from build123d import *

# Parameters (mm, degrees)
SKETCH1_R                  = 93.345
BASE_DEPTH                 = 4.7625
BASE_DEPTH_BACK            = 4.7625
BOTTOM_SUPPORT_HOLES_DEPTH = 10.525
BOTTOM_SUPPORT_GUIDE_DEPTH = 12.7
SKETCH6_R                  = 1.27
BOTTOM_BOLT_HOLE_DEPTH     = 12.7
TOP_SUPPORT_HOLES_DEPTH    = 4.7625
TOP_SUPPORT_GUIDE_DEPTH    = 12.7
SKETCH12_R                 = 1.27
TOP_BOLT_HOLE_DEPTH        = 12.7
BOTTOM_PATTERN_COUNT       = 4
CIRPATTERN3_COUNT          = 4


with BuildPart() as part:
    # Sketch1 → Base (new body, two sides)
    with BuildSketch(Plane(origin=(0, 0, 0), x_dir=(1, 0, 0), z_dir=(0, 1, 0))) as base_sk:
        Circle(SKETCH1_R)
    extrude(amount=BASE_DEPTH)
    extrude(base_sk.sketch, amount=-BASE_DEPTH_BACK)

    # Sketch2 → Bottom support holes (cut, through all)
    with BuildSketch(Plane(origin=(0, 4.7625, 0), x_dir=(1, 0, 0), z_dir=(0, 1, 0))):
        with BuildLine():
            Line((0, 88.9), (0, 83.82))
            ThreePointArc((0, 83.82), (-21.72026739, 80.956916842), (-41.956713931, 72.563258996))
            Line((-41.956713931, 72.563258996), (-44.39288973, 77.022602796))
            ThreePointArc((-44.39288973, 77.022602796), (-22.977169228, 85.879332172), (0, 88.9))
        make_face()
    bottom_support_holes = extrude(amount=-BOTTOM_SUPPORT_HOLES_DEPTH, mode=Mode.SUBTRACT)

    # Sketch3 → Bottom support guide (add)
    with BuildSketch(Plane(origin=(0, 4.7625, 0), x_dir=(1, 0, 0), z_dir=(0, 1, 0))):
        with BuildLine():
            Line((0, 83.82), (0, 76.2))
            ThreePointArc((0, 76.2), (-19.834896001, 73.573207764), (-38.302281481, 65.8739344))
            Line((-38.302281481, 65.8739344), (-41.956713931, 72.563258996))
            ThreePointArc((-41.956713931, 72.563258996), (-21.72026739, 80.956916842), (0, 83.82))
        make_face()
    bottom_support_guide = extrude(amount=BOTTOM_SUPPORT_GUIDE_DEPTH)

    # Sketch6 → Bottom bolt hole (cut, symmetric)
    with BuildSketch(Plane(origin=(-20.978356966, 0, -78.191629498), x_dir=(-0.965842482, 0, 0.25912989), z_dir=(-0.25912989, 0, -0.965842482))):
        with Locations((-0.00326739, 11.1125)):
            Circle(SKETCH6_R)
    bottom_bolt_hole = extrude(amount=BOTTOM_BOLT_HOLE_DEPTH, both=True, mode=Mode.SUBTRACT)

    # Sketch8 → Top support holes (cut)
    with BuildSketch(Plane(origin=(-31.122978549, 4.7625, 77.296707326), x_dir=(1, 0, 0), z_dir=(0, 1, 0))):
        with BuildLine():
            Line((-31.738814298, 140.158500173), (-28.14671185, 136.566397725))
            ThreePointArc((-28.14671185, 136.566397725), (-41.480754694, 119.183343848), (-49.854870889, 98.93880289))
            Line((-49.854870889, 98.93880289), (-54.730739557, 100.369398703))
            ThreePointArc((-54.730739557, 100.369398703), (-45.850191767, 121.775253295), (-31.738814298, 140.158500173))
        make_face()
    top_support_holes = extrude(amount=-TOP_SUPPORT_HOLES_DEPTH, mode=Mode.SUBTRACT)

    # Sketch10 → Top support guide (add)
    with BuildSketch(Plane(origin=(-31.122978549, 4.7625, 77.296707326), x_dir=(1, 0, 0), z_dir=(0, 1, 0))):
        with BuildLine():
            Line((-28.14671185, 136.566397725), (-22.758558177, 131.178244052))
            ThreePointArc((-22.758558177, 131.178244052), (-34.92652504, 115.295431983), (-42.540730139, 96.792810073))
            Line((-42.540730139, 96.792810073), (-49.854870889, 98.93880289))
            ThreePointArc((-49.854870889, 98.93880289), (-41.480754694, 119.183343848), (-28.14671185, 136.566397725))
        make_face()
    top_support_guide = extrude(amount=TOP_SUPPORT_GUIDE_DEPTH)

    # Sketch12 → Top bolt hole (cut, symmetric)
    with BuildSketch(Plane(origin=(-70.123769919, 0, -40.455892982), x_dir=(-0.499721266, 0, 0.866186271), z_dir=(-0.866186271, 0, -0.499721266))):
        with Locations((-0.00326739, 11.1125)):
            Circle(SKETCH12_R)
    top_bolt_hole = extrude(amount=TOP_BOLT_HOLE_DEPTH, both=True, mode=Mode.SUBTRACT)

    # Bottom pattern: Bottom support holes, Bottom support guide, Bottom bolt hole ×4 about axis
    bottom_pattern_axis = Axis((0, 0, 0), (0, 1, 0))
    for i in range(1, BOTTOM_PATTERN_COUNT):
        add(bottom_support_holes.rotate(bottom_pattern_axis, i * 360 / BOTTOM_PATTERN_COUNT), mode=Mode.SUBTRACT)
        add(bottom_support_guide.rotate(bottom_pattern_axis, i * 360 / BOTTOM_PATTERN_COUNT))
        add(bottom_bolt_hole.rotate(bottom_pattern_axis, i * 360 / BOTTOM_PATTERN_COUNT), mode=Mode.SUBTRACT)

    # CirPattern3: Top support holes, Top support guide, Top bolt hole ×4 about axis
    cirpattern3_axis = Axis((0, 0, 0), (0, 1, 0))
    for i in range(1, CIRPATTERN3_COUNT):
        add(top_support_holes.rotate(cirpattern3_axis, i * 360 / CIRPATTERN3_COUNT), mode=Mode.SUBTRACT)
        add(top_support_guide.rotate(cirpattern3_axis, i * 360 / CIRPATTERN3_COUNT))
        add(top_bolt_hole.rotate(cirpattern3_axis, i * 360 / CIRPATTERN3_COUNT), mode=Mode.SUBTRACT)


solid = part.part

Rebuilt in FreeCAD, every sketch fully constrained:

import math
import FreeCAD as App
import Part
import Sketcher
Q = App.Units.Quantity

doc = App.newDocument("Part")
body = doc.addObject("PartDesign::Body", "Body")

# Sketch on XZ plane
sketch1 = doc.addObject("Sketcher::SketchObject", "Sketch")
body.addObject(sketch1)
sketch1.AttachmentSupport = (doc.XZ_Plane, [""])
sketch1.MapMode = "FlatFace"
sketch1.addGeometry(Part.Circle(App.Vector(0, 0, 0), App.Vector(0, 0, 1), 93), False)
sketch1.addConstraint(Sketcher.Constraint("Coincident", 0, 3, -1, 1))
sketch1.addConstraint(Sketcher.Constraint("Diameter", 0, Q("7.35 in")))
pad1 = doc.addObject("PartDesign::Pad", "Pad")
body.addObject(pad1)
pad1.Profile = sketch1
pad1.Type = "TwoLengths"
pad1.Length = Q("0.1875 in")
pad1.Length2 = Q("0.1875 in")
pad1.Reversed = True

# Sketch on XZ plane
sketch2 = doc.addObject("Sketcher::SketchObject", "Sketch001")
body.addObject(sketch2)
sketch2.AttachmentSupport = (doc.XZ_Plane, [""])
sketch2.MapMode = "FlatFace"
sketch2.AttachmentOffset = App.Placement(App.Vector(0, 0, -0.1875 * 25.4), App.Rotation())
sketch2.addGeometry(Part.LineSegment(App.Vector(0, -84, 0), App.Vector(0, -89, 0)), False)
sketch2.addGeometry(Part.ArcOfCircle(Part.Circle(App.Vector(0, 0, 0), App.Vector(0, 0, 1), 89), math.radians(-120), math.radians(-90)), False)
sketch2.addGeometry(Part.LineSegment(App.Vector(-44, -77, 0), App.Vector(-42, -73, 0)), False)
sketch2.addGeometry(Part.ArcOfCircle(Part.Circle(App.Vector(0, 0, 0), App.Vector(0, 0, 1), 84), math.radians(-120), math.radians(-90)), False)
sketch2.addConstraint(Sketcher.Constraint("Coincident", 0, 2, 1, 2))
sketch2.addConstraint(Sketcher.Constraint("Coincident", 1, 1, 2, 1))
sketch2.addConstraint(Sketcher.Constraint("Coincident", 2, 2, 3, 1))
sketch2.addConstraint(Sketcher.Constraint("Coincident", 3, 2, 0, 1))
sketch2.addConstraint(Sketcher.Constraint("Vertical", 0))
sketch2.addConstraint(Sketcher.Constraint("Coincident", 1, 3, -1, 1))
sketch2.addConstraint(Sketcher.Constraint("Coincident", 3, 3, -1, 1))
sketch2.addConstraint(Sketcher.Constraint("PointOnObject", 0, 2, -2))
sketch2.addConstraint(Sketcher.Constraint("Radius", 1, Q("3.5 in")))
sketch2.addConstraint(Sketcher.Constraint("Radius", 3, Q("3.3 in")))
sketch2.addConstraint(Sketcher.Constraint("DistanceX", 1, 1, -1, 1, 44.39289))
sketch2.addConstraint(Sketcher.Constraint("DistanceY", 2, 2, -1, 1, 72.563259))
pocket1 = doc.addObject("PartDesign::Pocket", "Pocket")
body.addObject(pocket1)
pocket1.Profile = sketch2
pocket1.Type = "ThroughAll"
pocket1.Reversed = True

# Sketch on XZ plane
sketch3 = doc.addObject("Sketcher::SketchObject", "Sketch002")
body.addObject(sketch3)
sketch3.AttachmentSupport = (doc.XZ_Plane, [""])
sketch3.MapMode = "FlatFace"
sketch3.AttachmentOffset = App.Placement(App.Vector(0, 0, -0.1875 * 25.4), App.Rotation())
sketch3.addGeometry(Part.LineSegment(App.Vector(0, -76, 0), App.Vector(0, -84, 0)), False)
sketch3.addGeometry(Part.ArcOfCircle(Part.Circle(App.Vector(0, 0, 0), App.Vector(0, 0, 1), 84), math.radians(-120), math.radians(-90)), False)
sketch3.addGeometry(Part.LineSegment(App.Vector(-42, -73, 0), App.Vector(-38, -66, 0)), False)
sketch3.addGeometry(Part.ArcOfCircle(Part.Circle(App.Vector(0, 0, 0), App.Vector(0, 0, 1), 76), math.radians(-120), math.radians(-90)), False)
sketch3.addConstraint(Sketcher.Constraint("Coincident", 0, 2, 1, 2))
sketch3.addConstraint(Sketcher.Constraint("Coincident", 1, 1, 2, 1))
sketch3.addConstraint(Sketcher.Constraint("Coincident", 2, 2, 3, 1))
sketch3.addConstraint(Sketcher.Constraint("Coincident", 3, 2, 0, 1))
sketch3.addConstraint(Sketcher.Constraint("Vertical", 0))
sketch3.addConstraint(Sketcher.Constraint("Coincident", 1, 3, -1, 1))
sketch3.addConstraint(Sketcher.Constraint("Coincident", 3, 3, -1, 1))
sketch3.addConstraint(Sketcher.Constraint("PointOnObject", 0, 2, -2))
sketch3.addConstraint(Sketcher.Constraint("Radius", 3, Q("3 in")))
sketch3.addConstraint(Sketcher.Constraint("Radius", 1, Q("3.3 in")))
sketch3.addConstraint(Sketcher.Constraint("DistanceY", 1, 1, -1, 1, 72.563259))
sketch3.addConstraint(Sketcher.Constraint("DistanceX", 2, 2, -1, 1, 38.302281))
pad2 = doc.addObject("PartDesign::Pad", "Pad001")
body.addObject(pad2)
pad2.Profile = sketch3
pad2.Length = Q("0.5 in")
pad2.Reversed = True

# Sketch on an angled plane
sketch4 = doc.addObject("Sketcher::SketchObject", "Sketch003")
body.addObject(sketch4)
sketch4.Placement = App.Placement(App.Vector(-20.978357, 0, -78.191629), App.Rotation(App.Vector(-0.965842482, 0, 0.25912989), App.Vector(0, 1, 0), App.Vector(-0.25912989, 0, -0.965842482), "ZXY"))
sketch4.addGeometry(Part.Circle(App.Vector(0, 11.1, 0), App.Vector(0, 0, 1), 1.3), False)
sketch4.addConstraint(Sketcher.Constraint("Diameter", 0, Q("0.1 in")))
sketch4.addConstraint(Sketcher.Constraint("DistanceY", -1, 1, 0, 3, Q("0.4375 in")))
sketch4.addConstraint(Sketcher.Constraint("DistanceX", 0, 3, -1, 1, 0.003267))
pocket2 = doc.addObject("PartDesign::Pocket", "Pocket001")
body.addObject(pocket2)
pocket2.Profile = sketch4
pocket2.Length = Q("1 in")
pocket2.Midplane = True

# Sketch on XZ plane
sketch5 = doc.addObject("Sketcher::SketchObject", "Sketch004")
body.addObject(sketch5)
sketch5.AttachmentSupport = (doc.XZ_Plane, [""])
sketch5.MapMode = "FlatFace"
sketch5.AttachmentOffset = App.Placement(App.Vector(0, 0, -0.1875 * 25.4), App.Rotation())
sketch5.addGeometry(Part.LineSegment(App.Vector(-59, -59, 0), App.Vector(-63, -63, 0)), False)
sketch5.addGeometry(Part.ArcOfCircle(Part.Circle(App.Vector(0, 0, 0), App.Vector(0, 0, 1), 89), math.radians(-165), math.radians(-135)), False)
sketch5.addGeometry(Part.LineSegment(App.Vector(-86, -23, 0), App.Vector(-81, -22, 0)), False)
sketch5.addGeometry(Part.ArcOfCircle(Part.Circle(App.Vector(0, 0, 0), App.Vector(0, 0, 1), 84), math.radians(-165), math.radians(-135)), False)
sketch5.addConstraint(Sketcher.Constraint("Coincident", 0, 2, 1, 2))
sketch5.addConstraint(Sketcher.Constraint("Coincident", 1, 1, 2, 1))
sketch5.addConstraint(Sketcher.Constraint("Coincident", 2, 2, 3, 1))
sketch5.addConstraint(Sketcher.Constraint("Coincident", 3, 2, 0, 1))
sketch5.addConstraint(Sketcher.Constraint("Coincident", 1, 3, -1, 1))
sketch5.addConstraint(Sketcher.Constraint("Coincident", 3, 3, -1, 1))
sketch5.addConstraint(Sketcher.Constraint("Radius", 1, Q("3.5 in")))
sketch5.addConstraint(Sketcher.Constraint("Radius", 3, Q("3.3 in")))
sketch5.addConstraint(Sketcher.Constraint("Angle", 0, Q("-135 deg")))
sketch5.addConstraint(Sketcher.Constraint("DistanceY", 0, 2, 1, 1, Q("1.5665001 in")))
sketch5.addConstraint(Sketcher.Constraint("DistanceX", 1, 1, -1, 1, 85.853718))
sketch5.addConstraint(Sketcher.Constraint("DistanceX", 2, 2, -1, 1, 80.977849))
pocket3 = doc.addObject("PartDesign::Pocket", "Pocket002")
body.addObject(pocket3)
pocket3.Profile = sketch5
pocket3.Length = Q("0.1875 in")
pocket3.Reversed = True

# Sketch on XZ plane
sketch6 = doc.addObject("Sketcher::SketchObject", "Sketch005")
body.addObject(sketch6)
sketch6.AttachmentSupport = (doc.XZ_Plane, [""])
sketch6.MapMode = "FlatFace"
sketch6.AttachmentOffset = App.Placement(App.Vector(0, 0, -0.1875 * 25.4), App.Rotation())
sketch6.addGeometry(Part.LineSegment(App.Vector(-54, -54, 0), App.Vector(-59, -59, 0)), False)
sketch6.addGeometry(Part.ArcOfCircle(Part.Circle(App.Vector(0, 0, 0), App.Vector(0, 0, 1), 84), math.radians(-165), math.radians(-135)), False)
sketch6.addGeometry(Part.LineSegment(App.Vector(-81, -22, 0), App.Vector(-74, -19, 0)), False)
sketch6.addGeometry(Part.ArcOfCircle(Part.Circle(App.Vector(0, 0, 0), App.Vector(0, 0, 1), 76), math.radians(-165), math.radians(-135)), False)
sketch6.addConstraint(Sketcher.Constraint("Coincident", 0, 2, 1, 2))
sketch6.addConstraint(Sketcher.Constraint("Coincident", 1, 1, 2, 1))
sketch6.addConstraint(Sketcher.Constraint("Coincident", 2, 2, 3, 1))
sketch6.addConstraint(Sketcher.Constraint("Coincident", 3, 2, 0, 1))
sketch6.addConstraint(Sketcher.Constraint("Coincident", 1, 3, -1, 1))
sketch6.addConstraint(Sketcher.Constraint("Coincident", 3, 3, -1, 1))
sketch6.addConstraint(Sketcher.Constraint("Radius", 3, Q("3 in")))
sketch6.addConstraint(Sketcher.Constraint("Radius", 1, Q("3.3 in")))
sketch6.addConstraint(Sketcher.Constraint("Angle", 0, Q("-135 deg")))
sketch6.addConstraint(Sketcher.Constraint("DistanceX", 0, 2, -1, 1, 59.26969))
sketch6.addConstraint(Sketcher.Constraint("DistanceX", 1, 1, -1, 1, 80.977849))
sketch6.addConstraint(Sketcher.Constraint("DistanceX", 2, 2, -1, 1, 73.663709))
pad3 = doc.addObject("PartDesign::Pad", "Pad002")
body.addObject(pad3)
pad3.Profile = sketch6
pad3.Length = Q("0.5 in")
pad3.Reversed = True

# Sketch on an angled plane
sketch7 = doc.addObject("Sketcher::SketchObject", "Sketch006")
body.addObject(sketch7)
sketch7.Placement = App.Placement(App.Vector(-70.12377, 0, -40.455893), App.Rotation(App.Vector(-0.499721266, 0, 0.866186271), App.Vector(0, 1, 0), App.Vector(-0.866186271, 0, -0.499721266), "ZXY"))
sketch7.addGeometry(Part.Circle(App.Vector(0, 11.1, 0), App.Vector(0, 0, 1), 1.3), False)
sketch7.addConstraint(Sketcher.Constraint("Diameter", 0, Q("0.1 in")))
sketch7.addConstraint(Sketcher.Constraint("DistanceY", -1, 1, 0, 3, Q("0.4375 in")))
sketch7.addConstraint(Sketcher.Constraint("DistanceX", 0, 3, -1, 1, 0.003267))
pocket4 = doc.addObject("PartDesign::Pocket", "Pocket003")
body.addObject(pocket4)
pocket4.Profile = sketch7
pocket4.Length = Q("1 in")
pocket4.Midplane = True
doc.recompute()

polarpattern = doc.addObject("PartDesign::PolarPattern", "PolarPattern")
body.addObject(polarpattern)
polarpattern.Originals = [pocket1, pad2, pocket2]
polarpattern.Axis = (doc.Y_Axis, [""])
polarpattern.Angle = 360
polarpattern.Occurrences = 4
body.Tip = polarpattern
doc.recompute()

polarpattern2 = doc.addObject("PartDesign::PolarPattern", "PolarPattern001")
body.addObject(polarpattern2)
polarpattern2.Originals = [pocket3, pad3, pocket4]
polarpattern2.Axis = (doc.Y_Axis, [""])
polarpattern2.Angle = 360
polarpattern2.Occurrences = 4
body.Tip = polarpattern2

doc.recompute()
